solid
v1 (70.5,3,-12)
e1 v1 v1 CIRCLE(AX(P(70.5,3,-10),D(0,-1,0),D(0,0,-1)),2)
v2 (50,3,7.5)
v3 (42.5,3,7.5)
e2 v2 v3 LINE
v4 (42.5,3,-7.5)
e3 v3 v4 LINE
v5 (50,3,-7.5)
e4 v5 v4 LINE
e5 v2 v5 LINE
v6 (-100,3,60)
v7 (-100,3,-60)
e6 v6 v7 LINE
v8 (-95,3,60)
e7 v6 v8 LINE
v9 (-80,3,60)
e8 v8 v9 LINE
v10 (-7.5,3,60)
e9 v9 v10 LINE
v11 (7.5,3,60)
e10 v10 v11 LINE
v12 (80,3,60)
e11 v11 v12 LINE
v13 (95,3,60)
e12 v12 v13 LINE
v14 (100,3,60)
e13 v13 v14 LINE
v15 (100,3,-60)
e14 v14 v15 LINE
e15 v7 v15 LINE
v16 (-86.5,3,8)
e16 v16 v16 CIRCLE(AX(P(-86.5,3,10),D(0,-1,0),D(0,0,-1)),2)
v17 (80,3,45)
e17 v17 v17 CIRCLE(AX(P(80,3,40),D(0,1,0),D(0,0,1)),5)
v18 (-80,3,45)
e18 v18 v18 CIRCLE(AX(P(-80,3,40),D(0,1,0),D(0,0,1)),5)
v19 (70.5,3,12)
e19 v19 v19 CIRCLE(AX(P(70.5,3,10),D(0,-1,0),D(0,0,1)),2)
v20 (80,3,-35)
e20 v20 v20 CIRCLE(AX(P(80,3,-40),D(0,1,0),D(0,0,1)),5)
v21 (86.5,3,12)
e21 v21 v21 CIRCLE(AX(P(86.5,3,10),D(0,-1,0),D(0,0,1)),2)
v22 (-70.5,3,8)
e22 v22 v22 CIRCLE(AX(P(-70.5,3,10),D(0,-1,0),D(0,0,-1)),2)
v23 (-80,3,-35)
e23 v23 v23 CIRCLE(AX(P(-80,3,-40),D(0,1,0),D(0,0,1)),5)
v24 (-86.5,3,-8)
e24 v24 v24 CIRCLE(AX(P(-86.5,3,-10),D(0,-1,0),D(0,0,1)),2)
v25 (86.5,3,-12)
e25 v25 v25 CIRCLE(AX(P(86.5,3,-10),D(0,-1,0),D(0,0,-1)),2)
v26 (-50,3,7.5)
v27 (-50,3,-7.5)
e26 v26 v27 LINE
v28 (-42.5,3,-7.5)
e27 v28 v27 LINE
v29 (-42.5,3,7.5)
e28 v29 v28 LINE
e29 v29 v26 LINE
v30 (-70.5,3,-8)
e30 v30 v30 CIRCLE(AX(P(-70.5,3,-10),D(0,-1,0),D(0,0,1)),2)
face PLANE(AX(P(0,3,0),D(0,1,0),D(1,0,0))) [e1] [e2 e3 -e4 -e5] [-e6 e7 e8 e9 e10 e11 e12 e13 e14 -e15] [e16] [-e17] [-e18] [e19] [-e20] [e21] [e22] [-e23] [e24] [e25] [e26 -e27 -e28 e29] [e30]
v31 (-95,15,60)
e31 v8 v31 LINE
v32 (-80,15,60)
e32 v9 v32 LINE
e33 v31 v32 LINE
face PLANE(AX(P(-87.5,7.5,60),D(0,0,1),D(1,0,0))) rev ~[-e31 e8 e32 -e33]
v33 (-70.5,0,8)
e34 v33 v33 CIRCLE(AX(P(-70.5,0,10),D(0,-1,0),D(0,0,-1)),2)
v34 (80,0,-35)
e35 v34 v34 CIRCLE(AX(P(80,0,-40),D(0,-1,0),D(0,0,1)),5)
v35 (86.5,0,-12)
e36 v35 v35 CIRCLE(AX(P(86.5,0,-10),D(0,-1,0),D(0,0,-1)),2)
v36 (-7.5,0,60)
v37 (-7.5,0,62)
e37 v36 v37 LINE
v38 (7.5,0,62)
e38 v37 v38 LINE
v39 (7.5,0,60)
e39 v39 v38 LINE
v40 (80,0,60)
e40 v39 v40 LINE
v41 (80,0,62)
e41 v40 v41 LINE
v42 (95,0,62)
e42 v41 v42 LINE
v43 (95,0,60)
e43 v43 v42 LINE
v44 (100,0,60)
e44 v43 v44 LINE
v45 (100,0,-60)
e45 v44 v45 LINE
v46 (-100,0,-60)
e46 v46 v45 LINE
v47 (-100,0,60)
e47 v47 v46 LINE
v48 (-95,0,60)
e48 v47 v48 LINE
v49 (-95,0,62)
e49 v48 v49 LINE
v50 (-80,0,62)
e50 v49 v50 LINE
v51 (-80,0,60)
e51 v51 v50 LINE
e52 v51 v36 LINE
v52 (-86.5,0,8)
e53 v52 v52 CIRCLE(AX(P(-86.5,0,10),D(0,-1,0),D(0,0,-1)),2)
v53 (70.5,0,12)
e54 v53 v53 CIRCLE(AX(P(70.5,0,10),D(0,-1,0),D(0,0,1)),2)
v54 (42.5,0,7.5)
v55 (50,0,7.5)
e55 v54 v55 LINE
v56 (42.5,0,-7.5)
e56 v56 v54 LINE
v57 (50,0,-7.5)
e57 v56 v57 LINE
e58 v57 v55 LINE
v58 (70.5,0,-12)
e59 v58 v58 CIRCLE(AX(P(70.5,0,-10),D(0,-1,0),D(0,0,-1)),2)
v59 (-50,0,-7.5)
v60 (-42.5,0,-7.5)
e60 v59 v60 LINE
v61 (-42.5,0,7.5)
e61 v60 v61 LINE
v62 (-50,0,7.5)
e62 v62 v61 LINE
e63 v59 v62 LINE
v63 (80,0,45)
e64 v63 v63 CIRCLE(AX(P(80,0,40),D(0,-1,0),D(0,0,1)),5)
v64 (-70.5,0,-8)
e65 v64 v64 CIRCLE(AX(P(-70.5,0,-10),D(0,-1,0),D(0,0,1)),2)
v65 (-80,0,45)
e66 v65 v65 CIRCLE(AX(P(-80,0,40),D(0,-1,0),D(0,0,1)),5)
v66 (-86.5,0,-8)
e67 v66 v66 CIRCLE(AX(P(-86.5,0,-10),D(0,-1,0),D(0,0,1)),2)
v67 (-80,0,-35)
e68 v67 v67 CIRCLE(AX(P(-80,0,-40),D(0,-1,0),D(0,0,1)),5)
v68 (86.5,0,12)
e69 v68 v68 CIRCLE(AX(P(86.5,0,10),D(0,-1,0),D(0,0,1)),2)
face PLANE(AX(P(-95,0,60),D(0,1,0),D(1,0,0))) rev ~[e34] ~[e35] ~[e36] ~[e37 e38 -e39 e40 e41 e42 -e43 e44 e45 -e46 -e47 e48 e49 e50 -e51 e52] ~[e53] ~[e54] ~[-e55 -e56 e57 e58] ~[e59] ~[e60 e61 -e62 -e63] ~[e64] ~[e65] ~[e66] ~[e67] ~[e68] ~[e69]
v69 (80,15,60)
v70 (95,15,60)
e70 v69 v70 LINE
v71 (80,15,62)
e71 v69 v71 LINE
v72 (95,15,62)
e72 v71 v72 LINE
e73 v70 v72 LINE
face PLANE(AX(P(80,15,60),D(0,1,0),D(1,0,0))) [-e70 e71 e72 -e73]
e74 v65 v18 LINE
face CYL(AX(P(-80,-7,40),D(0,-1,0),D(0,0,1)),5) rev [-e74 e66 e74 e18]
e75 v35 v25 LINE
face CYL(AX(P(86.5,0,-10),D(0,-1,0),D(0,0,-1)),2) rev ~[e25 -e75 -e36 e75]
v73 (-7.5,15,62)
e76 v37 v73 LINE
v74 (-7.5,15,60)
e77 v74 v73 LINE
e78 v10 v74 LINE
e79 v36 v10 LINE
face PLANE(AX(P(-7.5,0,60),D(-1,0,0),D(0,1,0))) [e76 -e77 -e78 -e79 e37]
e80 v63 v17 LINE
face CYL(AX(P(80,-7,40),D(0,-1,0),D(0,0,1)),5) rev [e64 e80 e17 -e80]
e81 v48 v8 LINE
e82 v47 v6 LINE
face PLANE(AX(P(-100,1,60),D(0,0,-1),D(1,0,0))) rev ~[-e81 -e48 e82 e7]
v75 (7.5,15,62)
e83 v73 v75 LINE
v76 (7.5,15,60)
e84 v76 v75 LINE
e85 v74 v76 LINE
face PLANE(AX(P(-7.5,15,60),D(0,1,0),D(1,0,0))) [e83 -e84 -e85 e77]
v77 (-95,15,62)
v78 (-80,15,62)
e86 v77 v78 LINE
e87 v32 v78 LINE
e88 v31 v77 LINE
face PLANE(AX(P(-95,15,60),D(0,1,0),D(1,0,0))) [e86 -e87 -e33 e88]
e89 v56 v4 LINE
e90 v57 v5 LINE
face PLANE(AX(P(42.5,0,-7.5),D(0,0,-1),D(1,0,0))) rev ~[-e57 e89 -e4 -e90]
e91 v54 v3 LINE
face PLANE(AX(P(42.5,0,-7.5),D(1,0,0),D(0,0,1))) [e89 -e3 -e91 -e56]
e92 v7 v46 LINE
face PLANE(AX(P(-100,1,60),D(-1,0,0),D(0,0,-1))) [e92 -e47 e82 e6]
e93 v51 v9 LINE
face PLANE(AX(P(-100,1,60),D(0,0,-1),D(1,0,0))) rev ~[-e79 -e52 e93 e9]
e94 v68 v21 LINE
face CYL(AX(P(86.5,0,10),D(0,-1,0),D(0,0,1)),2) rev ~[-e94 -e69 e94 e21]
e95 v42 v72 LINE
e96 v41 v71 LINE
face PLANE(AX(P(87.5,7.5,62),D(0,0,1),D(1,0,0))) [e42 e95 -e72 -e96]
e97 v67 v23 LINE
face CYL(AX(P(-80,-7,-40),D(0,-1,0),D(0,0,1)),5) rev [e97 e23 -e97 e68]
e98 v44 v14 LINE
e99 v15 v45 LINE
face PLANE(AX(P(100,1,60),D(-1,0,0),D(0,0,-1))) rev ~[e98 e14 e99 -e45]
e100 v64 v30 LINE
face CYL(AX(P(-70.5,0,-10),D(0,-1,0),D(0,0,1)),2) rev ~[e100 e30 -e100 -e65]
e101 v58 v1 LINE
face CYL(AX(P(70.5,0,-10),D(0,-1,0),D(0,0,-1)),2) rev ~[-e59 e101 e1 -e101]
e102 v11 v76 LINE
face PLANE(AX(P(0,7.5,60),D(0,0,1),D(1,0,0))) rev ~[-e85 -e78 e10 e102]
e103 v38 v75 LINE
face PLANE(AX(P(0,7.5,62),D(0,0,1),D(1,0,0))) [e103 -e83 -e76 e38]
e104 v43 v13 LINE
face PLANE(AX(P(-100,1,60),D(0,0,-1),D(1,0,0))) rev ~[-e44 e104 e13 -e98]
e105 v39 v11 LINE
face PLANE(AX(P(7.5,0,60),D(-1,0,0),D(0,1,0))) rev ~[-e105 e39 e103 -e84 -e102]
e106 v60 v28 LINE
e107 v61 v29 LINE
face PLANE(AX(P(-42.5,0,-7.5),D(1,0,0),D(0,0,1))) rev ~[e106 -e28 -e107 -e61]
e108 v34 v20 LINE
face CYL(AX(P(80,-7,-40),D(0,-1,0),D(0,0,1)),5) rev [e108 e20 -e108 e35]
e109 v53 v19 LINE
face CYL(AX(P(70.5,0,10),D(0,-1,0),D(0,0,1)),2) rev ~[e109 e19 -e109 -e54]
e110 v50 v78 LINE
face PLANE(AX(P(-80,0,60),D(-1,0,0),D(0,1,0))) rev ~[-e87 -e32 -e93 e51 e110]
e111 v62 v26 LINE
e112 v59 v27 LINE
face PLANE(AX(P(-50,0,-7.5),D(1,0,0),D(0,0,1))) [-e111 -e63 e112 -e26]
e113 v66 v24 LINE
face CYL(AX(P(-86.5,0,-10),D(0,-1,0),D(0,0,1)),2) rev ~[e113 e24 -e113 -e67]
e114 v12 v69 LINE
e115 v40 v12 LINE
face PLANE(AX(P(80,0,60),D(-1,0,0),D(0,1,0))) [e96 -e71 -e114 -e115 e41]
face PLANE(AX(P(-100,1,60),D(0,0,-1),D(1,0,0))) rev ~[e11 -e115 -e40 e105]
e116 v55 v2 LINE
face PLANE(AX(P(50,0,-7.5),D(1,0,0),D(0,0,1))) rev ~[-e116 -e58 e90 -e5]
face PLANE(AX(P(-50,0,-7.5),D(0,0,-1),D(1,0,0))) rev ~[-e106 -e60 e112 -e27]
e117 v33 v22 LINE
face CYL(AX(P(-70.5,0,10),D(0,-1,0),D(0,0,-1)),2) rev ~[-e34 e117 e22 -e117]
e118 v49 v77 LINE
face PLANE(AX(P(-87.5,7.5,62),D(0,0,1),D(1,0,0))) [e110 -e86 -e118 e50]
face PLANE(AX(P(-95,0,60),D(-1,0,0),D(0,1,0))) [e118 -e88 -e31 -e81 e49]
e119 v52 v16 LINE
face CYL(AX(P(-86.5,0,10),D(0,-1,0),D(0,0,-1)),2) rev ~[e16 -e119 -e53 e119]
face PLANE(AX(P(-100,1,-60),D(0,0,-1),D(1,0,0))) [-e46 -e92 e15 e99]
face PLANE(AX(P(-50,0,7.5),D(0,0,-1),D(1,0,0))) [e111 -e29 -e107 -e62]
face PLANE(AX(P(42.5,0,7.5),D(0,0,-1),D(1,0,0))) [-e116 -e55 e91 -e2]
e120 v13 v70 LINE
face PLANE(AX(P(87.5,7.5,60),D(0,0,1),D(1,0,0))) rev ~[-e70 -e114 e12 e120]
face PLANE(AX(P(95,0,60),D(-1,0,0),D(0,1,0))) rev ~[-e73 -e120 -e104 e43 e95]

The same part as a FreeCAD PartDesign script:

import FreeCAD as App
import Part
import Sketcher
from FreeCAD import Vector


def add_polygon(sketch, points):
    """Adds a closed chain of lines whose ends are joined by coincident constraints."""
    first, n = sketch.GeometryCount, len(points)
    for a, b in zip(points, points[1:] + points[:1]):
        sketch.addGeometry(Part.LineSegment(App.Vector(*a, 0), App.Vector(*b, 0)), False)
    for i in range(n):
        sketch.addConstraint(Sketcher.Constraint("Coincident", first + i, 2, first + (i + 1) % n, 1))

doc = App.newDocument("Part")
body = doc.addObject("PartDesign::Body", "Body")

sketch1 = body.newObject("Sketcher::SketchObject", "Sketch")
sketch1.AttachmentSupport = (doc.getObject("XZ_Plane"), [""])
sketch1.MapMode = "FlatFace"
add_polygon(sketch1, [(-100, -60), (-100, 60), (100, 60), (100, -60)])
sketch1.addConstraint([
    Sketcher.Constraint("Vertical", 0),
    Sketcher.Constraint("Horizontal", 1),
    Sketcher.Constraint("Vertical", 2),
    Sketcher.Constraint("Horizontal", 3),
    Sketcher.Constraint("Symmetric", 0, 2, 2, 2, -1, 1),
    Sketcher.Constraint("DistanceX", 1, 1, 1, 2, 200.0),
    Sketcher.Constraint("DistanceY", 0, 1, 0, 2, 120.0),
])
pad1 = body.newObject("PartDesign::Pad", "Pad")
pad1.Profile = sketch1
pad1.Length = 1
pad1.Reversed = True

sketch2 = body.newObject("Sketcher::SketchObject", "Sketch001")
sketch2.AttachmentSupport = (doc.getObject("XZ_Plane"), [""])
sketch2.MapMode = "FlatFace"
sketch2.AttachmentOffset = App.Placement(Vector(0, 0, -1), App.Rotation())
add_polygon(sketch2, [(-100, -60), (-100, 60), (100, 60), (100, -60)])
sketch2.addGeometry(Part.Circle(Vector(-80, 40, 0), Vector(0, 0, 1), 5), False)
sketch2.addGeometry(Part.Circle(Vector(80, 40, 0), Vector(0, 0, 1), 5), False)
sketch2.addGeometry(Part.Circle(Vector(-80, -40, 0), Vector(0, 0, 1), 5), False)
sketch2.addGeometry(Part.Circle(Vector(80, -40, 0), Vector(0, 0, 1), 5), False)
sketch2.addConstraint([
    Sketcher.Constraint("Vertical", 0),
    Sketcher.Constraint("Horizontal", 1),
    Sketcher.Constraint("Vertical", 2),
    Sketcher.Constraint("Horizontal", 3),
    Sketcher.Constraint("Equal", 4, 5),
    Sketcher.Constraint("Equal", 5, 6),
    Sketcher.Constraint("Equal", 6, 7),
    Sketcher.Constraint("Symmetric", 5, 3, 6, 3, -1, 1),
    Sketcher.Constraint("Symmetric", 4, 3, 7, 3, -1, 1),
    Sketcher.Constraint("Symmetric", 0, 2, 2, 2, -1, 1),
    Sketcher.Constraint("Symmetric", 4, 3, 5, 3, -2),
    Sketcher.Constraint("Diameter", 4, 10.0),
    Sketcher.Constraint("DistanceX", 1, 1, 1, 2, 200.0),
    Sketcher.Constraint("DistanceY", 0, 1, 0, 2, 120.0),
    Sketcher.Constraint("DistanceX", 4, 3, -1, 1, 80.0),
    Sketcher.Constraint("DistanceY", -1, 1, 4, 3, 40.0),
])
pad2 = body.newObject("PartDesign::Pad", "Pad001")
pad2.Profile = sketch2
pad2.Length = 2
pad2.Reversed = True

sketch3 = body.newObject("Sketcher::SketchObject", "Sketch002")
sketch3.AttachmentSupport = (doc.getObject("XY_Plane"), [""])
sketch3.MapMode = "FlatFace"
sketch3.AttachmentOffset = App.Placement(Vector(0, 0, 60), App.Rotation())
add_polygon(sketch3, [(-95, 15), (-95, 0), (-80, 0), (-80, 15)])
add_polygon(sketch3, [(80, 15), (80, 0), (95, 0), (95, 15)])
add_polygon(sketch3, [(-8, 15), (-8, 0), (8, 0), (8, 15)])
sketch3.addConstraint([
    Sketcher.Constraint("Vertical", 0),
    Sketcher.Constraint("Horizontal", 1),
    Sketcher.Constraint("Vertical", 2),
    Sketcher.Constraint("Horizontal", 3),
    Sketcher.Constraint("Vertical", 4),
    Sketcher.Constraint("Horizontal", 5),
    Sketcher.Constraint("Vertical", 6),
    Sketcher.Constraint("Horizontal", 7),
    Sketcher.Constraint("Vertical", 8),
    Sketcher.Constraint("Horizontal", 9),
    Sketcher.Constraint("Vertical", 10),
    Sketcher.Constraint("Horizontal", 11),
    Sketcher.Constraint("Symmetric", 1, 2, 4, 2, -1, 1),
    Sketcher.Constraint("Symmetric", 8, 2, 9, 2, -1, 1),
    Sketcher.Constraint("Symmetric", 0, 2, 5, 2, -2),
    Sketcher.Constraint("Horizontal", 3, 2, 6, 2),
    Sketcher.Constraint("Horizontal", 7, 2, 10, 2),
    Sketcher.Constraint("Equal", 7, 9),
    Sketcher.Constraint("Equal", 11, 0),
    Sketcher.Constraint("DistanceX", 1, 1, 1, 2, 15.0),
    Sketcher.Constraint("DistanceX", 0, 2, -1, 1, 95.0),
])
pad3 = body.newObject("PartDesign::Pad", "Pad002")
pad3.Profile = sketch3
pad3.Length = 2

sketch4 = body.newObject("Sketcher::SketchObject", "Sketch003")
sketch4.AttachmentSupport = (doc.getObject("XZ_Plane"), [""])
sketch4.MapMode = "FlatFace"
sketch4.addGeometry(Part.Circle(Vector(-86.5, 10, 0), Vector(0, 0, 1), 2), False)
sketch4.addGeometry(Part.Circle(Vector(-70.5, 10, 0), Vector(0, 0, 1), 2), False)
sketch4.addGeometry(Part.Circle(Vector(-70.5, -10, 0), Vector(0, 0, 1), 2), False)
sketch4.addGeometry(Part.Circle(Vector(-86.5, -10, 0), Vector(0, 0, 1), 2), False)
sketch4.addGeometry(Part.Circle(Vector(86.5, -10, 0), Vector(0, 0, 1), 2), False)
sketch4.addGeometry(Part.Circle(Vector(70.5, -10, 0), Vector(0, 0, 1), 2), False)
sketch4.addGeometry(Part.Circle(Vector(70.5, 10, 0), Vector(0, 0, 1), 2), False)
sketch4.addGeometry(Part.Circle(Vector(86.5, 10, 0), Vector(0, 0, 1), 2), False)
add_polygon(sketch4, [(42.5, 7.5), (42.5, -7.5), (50, -7.5), (50, 7.5)])
add_polygon(sketch4, [(-50, 7.5), (-50, -7.5), (-42.5, -7.5), (-42.5, 7.5)])
sketch4.addConstraint([
    Sketcher.Constraint("Vertical", 8),
    Sketcher.Constraint("Horizontal", 9),
    Sketcher.Constraint("Vertical", 10),
    Sketcher.Constraint("Horizontal", 11),
    Sketcher.Constraint("Vertical", 12),
    Sketcher.Constraint("Horizontal", 13),
    Sketcher.Constraint("Vertical", 14),
    Sketcher.Constraint("Horizontal", 15),
    Sketcher.Constraint("Equal", 0, 1),
    Sketcher.Constraint("Equal", 1, 2),
    Sketcher.Constraint("Equal", 2, 3),
    Sketcher.Constraint("Equal", 3, 4),
    Sketcher.Constraint("Equal", 4, 5),
    Sketcher.Constraint("Equal", 5, 6),
    Sketcher.Constraint("Equal", 6, 7),
    Sketcher.Constraint("Symmetric", 0, 3, 4, 3, -1, 1),
    Sketcher.Constraint("Symmetric", 1, 3, 5, 3, -1, 1),
    Sketcher.Constraint("Symmetric", 2, 3, 6, 3, -1, 1),
    Sketcher.Constraint("Symmetric", 3, 3, 7, 3, -1, 1),
    Sketcher.Constraint("Symmetric", 10, 2, 12, 2, -1, 1),
    Sketcher.Constraint("Symmetric", 8, 2, 14, 2, -1, 1),
    Sketcher.Constraint("Symmetric", 3, 3, 4, 3, -2),
    Sketcher.Constraint("Symmetric", 2, 3, 5, 3, -2),
    Sketcher.Constraint("Horizontal", 0, 3, 1, 3),
    Sketcher.Constraint("Horizontal", 9, 2, 12, 2),
    Sketcher.Constraint("Diameter", 0, 4.0),
    Sketcher.Constraint("DistanceY", 8, 2, 8, 1, 15.0),
    Sketcher.Constraint("DistanceX", 9, 1, 9, 2, 7.5),
    Sketcher.Constraint("DistanceY", -1, 1, 0, 3, 10.0),
    Sketcher.Constraint("DistanceX", -1, 1, 9, 2, 50.0),
    Sketcher.Constraint("DistanceX", 0, 3, 1, 3, 16.0),
    Sketcher.Constraint("DistanceX", 2, 3, 4, 3, 157.0),
])
pocket1 = body.newObject("PartDesign::Pocket", "Pocket")
pocket1.Profile = sketch4
pocket1.Type = "ThroughAll"

sketch5 = body.newObject("Sketcher::SketchObject", "Sketch004")
sketch5.AttachmentSupport = (doc.getObject("XZ_Plane"), [""])
sketch5.MapMode = "FlatFace"
sketch5.AttachmentOffset = App.Placement(Vector(0, 0, 7), App.Rotation())
sketch5.addGeometry([
    Part.Circle(Vector(-80, -40, 0), Vector(0, 0, 1), 5),
    Part.Circle(Vector(80, -40, 0), Vector(0, 0, 1), 5),
    Part.Circle(Vector(80, 40, 0), Vector(0, 0, 1), 5),
    Part.Circle(Vector(-80, 40, 0), Vector(0, 0, 1), 5),
], False)
sketch5.addConstraint([
    Sketcher.Constraint("Equal", 0, 1),
    Sketcher.Constraint("Equal", 1, 2),
    Sketcher.Constraint("Equal", 2, 3),
    Sketcher.Constraint("Symmetric", 0, 3, 2, 3, -1, 1),
    Sketcher.Constraint("Symmetric", 1, 3, 3, 3, -1, 1),
    Sketcher.Constraint("Symmetric", 0, 3, 1, 3, -2),
    Sketcher.Constraint("Diameter", 0, 10.0),
    Sketcher.Constraint("DistanceX", 0, 3, -1, 1, 80.0),
    Sketcher.Constraint("DistanceY", 0, 3, -1, 1, 40.0),
])
pocket2 = body.newObject("PartDesign::Pocket", "Pocket001")
pocket2.Profile = sketch5
pocket2.Length = 10

doc.recompute()
